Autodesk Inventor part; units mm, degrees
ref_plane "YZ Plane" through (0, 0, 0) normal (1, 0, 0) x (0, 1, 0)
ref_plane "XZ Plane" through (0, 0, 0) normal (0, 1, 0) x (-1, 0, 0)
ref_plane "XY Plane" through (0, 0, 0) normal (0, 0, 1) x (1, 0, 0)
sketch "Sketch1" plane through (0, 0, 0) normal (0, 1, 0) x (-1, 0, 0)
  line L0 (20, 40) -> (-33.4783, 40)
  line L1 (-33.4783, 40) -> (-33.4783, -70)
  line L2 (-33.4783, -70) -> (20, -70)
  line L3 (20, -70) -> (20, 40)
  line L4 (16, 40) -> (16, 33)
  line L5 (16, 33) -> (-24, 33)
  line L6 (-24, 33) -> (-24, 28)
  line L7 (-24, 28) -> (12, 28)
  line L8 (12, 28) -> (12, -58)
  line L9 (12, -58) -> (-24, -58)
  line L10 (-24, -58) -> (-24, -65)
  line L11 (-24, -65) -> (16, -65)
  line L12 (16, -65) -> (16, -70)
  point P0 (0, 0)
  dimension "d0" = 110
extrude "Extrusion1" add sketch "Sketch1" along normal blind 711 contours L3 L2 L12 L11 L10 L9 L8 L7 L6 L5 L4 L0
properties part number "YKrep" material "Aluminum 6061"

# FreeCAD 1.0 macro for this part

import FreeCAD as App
import Part
import Sketcher
Q = App.Units.Quantity

doc = App.newDocument("Part")
params = doc.addObject("Spreadsheet::Sheet", "Params")
for row, (alias, value) in enumerate([
    ("sketch1_height", "110 mm"),
    ("sketch1_width", "4 mm"),
    ("sketch1_width2", "40 mm"),
    ("sketch1_width3", "36 mm"),
    ("sketch1_height2", "7 mm"),
    ("pad1_length", "711 mm"),
], start=1):
    params.set(f"A{row}", alias)
    params.set(f"B{row}", "=" + value)
    params.setAlias(f"B{row}", alias)

body = doc.addObject("PartDesign::Body", "Body")

# Sketch on XZ plane
sketch1 = doc.addObject("Sketcher::SketchObject", "Sketch")
body.addObject(sketch1)
sketch1.AttachmentSupport = (doc.XZ_Plane, [""])
sketch1.MapMode = "FlatFace"
sketch1.addGeometry([
    Part.LineSegment(App.Vector(-20, -70, 0), App.Vector(-20, 40, 0)),  # 0
    Part.LineSegment(App.Vector(-20, 40, 0), App.Vector(-16, 40, 0)),  # 1
    Part.LineSegment(App.Vector(-16, 40, 0), App.Vector(-16, 33, 0)),  # 2
    Part.LineSegment(App.Vector(-16, 33, 0), App.Vector(24, 33, 0)),  # 3
    Part.LineSegment(App.Vector(24, 33, 0), App.Vector(24, 28, 0)),  # 4
    Part.LineSegment(App.Vector(24, 28, 0), App.Vector(-12, 28, 0)),  # 5
    Part.LineSegment(App.Vector(-12, 28, 0), App.Vector(-12, -58, 0)),  # 6
    Part.LineSegment(App.Vector(-12, -58, 0), App.Vector(24, -58, 0)),  # 7
    Part.LineSegment(App.Vector(24, -58, 0), App.Vector(24, -65, 0)),  # 8
    Part.LineSegment(App.Vector(24, -65, 0), App.Vector(-16, -65, 0)),  # 9
    Part.LineSegment(App.Vector(-16, -65, 0), App.Vector(-16, -70, 0)),  # 10
    Part.LineSegment(App.Vector(-16, -70, 0), App.Vector(-20, -70, 0)),  # 11
], False)
sketch1.addConstraint([
    Sketcher.Constraint("Coincident", 0, 2, 1, 1),
    Sketcher.Constraint("Coincident", 1, 2, 2, 1),
    Sketcher.Constraint("Coincident", 2, 2, 3, 1),
    Sketcher.Constraint("Coincident", 3, 2, 4, 1),
    Sketcher.Constraint("Coincident", 4, 2, 5, 1),
    Sketcher.Constraint("Coincident", 5, 2, 6, 1),
    Sketcher.Constraint("Coincident", 6, 2, 7, 1),
    Sketcher.Constraint("Coincident", 7, 2, 8, 1),
    Sketcher.Constraint("Coincident", 8, 2, 9, 1),
    Sketcher.Constraint("Coincident", 9, 2, 10, 1),
    Sketcher.Constraint("Coincident", 10, 2, 11, 1),
    Sketcher.Constraint("Coincident", 11, 2, 0, 1),
    Sketcher.Constraint("Vertical", 0),
    Sketcher.Constraint("Horizontal", 1),
    Sketcher.Constraint("Vertical", 2),
    Sketcher.Constraint("Horizontal", 3),
    Sketcher.Constraint("Vertical", 4),
    Sketcher.Constraint("Horizontal", 5),
    Sketcher.Constraint("Vertical", 6),
    Sketcher.Constraint("Horizontal", 7),
    Sketcher.Constraint("Vertical", 8),
    Sketcher.Constraint("Horizontal", 9),
    Sketcher.Constraint("Vertical", 10),
    Sketcher.Constraint("Horizontal", 11),
    Sketcher.Constraint("Vertical", 4, 2, 7, 2),
    Sketcher.Constraint("Vertical", 2, 2, 9, 2),
    Sketcher.Constraint("Equal", 2, 8),
    Sketcher.Constraint("Equal", 4, 10),
    Sketcher.Constraint("DistanceY", 0, 1, 0, 2, Q("110 mm")),
    Sketcher.Constraint("DistanceX", 1, 1, 1, 2, Q("4 mm")),
    Sketcher.Constraint("DistanceX", 3, 1, 3, 2, Q("40 mm")),
    Sketcher.Constraint("DistanceX", 5, 2, 5, 1, Q("36 mm")),
    Sketcher.Constraint("DistanceY", 2, 2, 2, 1, Q("7 mm")),
    Sketcher.Constraint("DistanceY", 4, 2, 4, 1, Q("5 mm")),
    Sketcher.Constraint("DistanceX", 0, 2, -1, 1, Q("20 mm")),
    Sketcher.Constraint("DistanceY", -1, 1, 0, 2, Q("40 mm")),
])
sketch1.setExpression("Constraints[28]", "Params.sketch1_height")
sketch1.setExpression("Constraints[29]", "Params.sketch1_width")
sketch1.setExpression("Constraints[30]", "Params.sketch1_width2")
sketch1.setExpression("Constraints[31]", "Params.sketch1_width3")
sketch1.setExpression("Constraints[32]", "Params.sketch1_height2")
pad1 = doc.addObject("PartDesign::Pad", "Pad")
body.addObject(pad1)
pad1.Profile = sketch1
pad1.setExpression("Length", "Params.pad1_length")
pad1.Reversed = True

doc.recompute()
